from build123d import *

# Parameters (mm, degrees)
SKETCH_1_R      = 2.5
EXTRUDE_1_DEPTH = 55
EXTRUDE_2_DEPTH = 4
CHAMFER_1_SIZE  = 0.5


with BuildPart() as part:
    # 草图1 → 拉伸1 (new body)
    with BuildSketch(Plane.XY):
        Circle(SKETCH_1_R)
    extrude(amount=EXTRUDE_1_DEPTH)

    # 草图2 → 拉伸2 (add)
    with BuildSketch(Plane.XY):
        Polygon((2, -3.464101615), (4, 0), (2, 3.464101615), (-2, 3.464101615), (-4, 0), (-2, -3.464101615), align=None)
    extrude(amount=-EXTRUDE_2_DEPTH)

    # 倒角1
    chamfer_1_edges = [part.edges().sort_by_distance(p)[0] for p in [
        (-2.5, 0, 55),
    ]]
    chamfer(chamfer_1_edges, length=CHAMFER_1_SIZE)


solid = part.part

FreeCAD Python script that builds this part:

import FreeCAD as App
import Part
import Sketcher
from FreeCAD import Vector
Q = App.Units.Quantity


def edges_at(feature, points):
    """Names of the edges that pass closest to the given points."""
    edges = feature.Shape.Edges
    near = lambda p: min(range(len(edges)), key=lambda i: edges[i].distToShape(Part.Vertex(*p))[0])
    return sorted({f"Edge{near(p) + 1}" for p in points})


def add_polygon(sketch, points):
    """Adds a closed chain of lines whose ends are joined by coincident constraints."""
    first, n = sketch.GeometryCount, len(points)
    for a, b in zip(points, points[1:] + points[:1]):
        sketch.addGeometry(Part.LineSegment(App.Vector(*a, 0), App.Vector(*b, 0)), False)
    for i in range(n):
        sketch.addConstraint(Sketcher.Constraint("Coincident", first + i, 2, first + (i + 1) % n, 1))

doc = App.newDocument("Part")
body = doc.addObject("PartDesign::Body", "Body")

sketch1 = body.newObject("Sketcher::SketchObject", "Sketch")
sketch1.AttachmentSupport = (doc.getObject("XY_Plane"), [""])
sketch1.MapMode = "FlatFace"
sketch1.addGeometry(Part.Circle(Vector(0, 0, 0), Vector(0, 0, 1), 2.5), False)
sketch1.addConstraint(Sketcher.Constraint("Coincident", 0, 3, -1, 1))
sketch1.addConstraint(Sketcher.Constraint("Diameter", 0, Q("5 mm")))
pad1 = body.newObject("PartDesign::Pad", "Pad")
pad1.Profile = sketch1
pad1.Length = 55

sketch2 = body.newObject("Sketcher::SketchObject", "Sketch001")
sketch2.AttachmentSupport = (doc.getObject("XY_Plane"), [""])
sketch2.MapMode = "FlatFace"
add_polygon(sketch2, [(2, -3.5), (4, 0), (2, 3.5), (-2, 3.5), (-4, 0), (-2, -3.5)])
sketch2.addConstraint(Sketcher.Constraint("Horizontal", 2))
sketch2.addConstraint(Sketcher.Constraint("Horizontal", 5))
sketch2.addConstraint(Sketcher.Constraint("Symmetric", 0, 2, 3, 2, -1, 1))
sketch2.addConstraint(Sketcher.Constraint("Symmetric", 1, 2, 4, 2, -1, 1))
sketch2.addConstraint(Sketcher.Constraint("PointOnObject", 0, 2, -1))
sketch2.addConstraint(Sketcher.Constraint("Parallel", 0, 3))
sketch2.addConstraint(Sketcher.Constraint("Vertical", 2, 2, 4, 2))
sketch2.addConstraint(Sketcher.Constraint("DistanceX", 2, 2, 2, 1, Q("4 mm")))
sketch2.addConstraint(Sketcher.Constraint("Angle", 0, Q("60 deg")))
sketch2.addConstraint(Sketcher.Constraint("Distance", 0, Q("4 mm")))
pad2 = body.newObject("PartDesign::Pad", "Pad001")
pad2.Profile = sketch2
pad2.Length = 4
pad2.Reversed = True
doc.recompute()

chamfer = body.newObject("PartDesign::Chamfer", "Chamfer")
chamfer.Base = (pad2, edges_at(pad2, [(-2.5, 0, 55)]))
chamfer.Size = 0.5

doc.recompute()
